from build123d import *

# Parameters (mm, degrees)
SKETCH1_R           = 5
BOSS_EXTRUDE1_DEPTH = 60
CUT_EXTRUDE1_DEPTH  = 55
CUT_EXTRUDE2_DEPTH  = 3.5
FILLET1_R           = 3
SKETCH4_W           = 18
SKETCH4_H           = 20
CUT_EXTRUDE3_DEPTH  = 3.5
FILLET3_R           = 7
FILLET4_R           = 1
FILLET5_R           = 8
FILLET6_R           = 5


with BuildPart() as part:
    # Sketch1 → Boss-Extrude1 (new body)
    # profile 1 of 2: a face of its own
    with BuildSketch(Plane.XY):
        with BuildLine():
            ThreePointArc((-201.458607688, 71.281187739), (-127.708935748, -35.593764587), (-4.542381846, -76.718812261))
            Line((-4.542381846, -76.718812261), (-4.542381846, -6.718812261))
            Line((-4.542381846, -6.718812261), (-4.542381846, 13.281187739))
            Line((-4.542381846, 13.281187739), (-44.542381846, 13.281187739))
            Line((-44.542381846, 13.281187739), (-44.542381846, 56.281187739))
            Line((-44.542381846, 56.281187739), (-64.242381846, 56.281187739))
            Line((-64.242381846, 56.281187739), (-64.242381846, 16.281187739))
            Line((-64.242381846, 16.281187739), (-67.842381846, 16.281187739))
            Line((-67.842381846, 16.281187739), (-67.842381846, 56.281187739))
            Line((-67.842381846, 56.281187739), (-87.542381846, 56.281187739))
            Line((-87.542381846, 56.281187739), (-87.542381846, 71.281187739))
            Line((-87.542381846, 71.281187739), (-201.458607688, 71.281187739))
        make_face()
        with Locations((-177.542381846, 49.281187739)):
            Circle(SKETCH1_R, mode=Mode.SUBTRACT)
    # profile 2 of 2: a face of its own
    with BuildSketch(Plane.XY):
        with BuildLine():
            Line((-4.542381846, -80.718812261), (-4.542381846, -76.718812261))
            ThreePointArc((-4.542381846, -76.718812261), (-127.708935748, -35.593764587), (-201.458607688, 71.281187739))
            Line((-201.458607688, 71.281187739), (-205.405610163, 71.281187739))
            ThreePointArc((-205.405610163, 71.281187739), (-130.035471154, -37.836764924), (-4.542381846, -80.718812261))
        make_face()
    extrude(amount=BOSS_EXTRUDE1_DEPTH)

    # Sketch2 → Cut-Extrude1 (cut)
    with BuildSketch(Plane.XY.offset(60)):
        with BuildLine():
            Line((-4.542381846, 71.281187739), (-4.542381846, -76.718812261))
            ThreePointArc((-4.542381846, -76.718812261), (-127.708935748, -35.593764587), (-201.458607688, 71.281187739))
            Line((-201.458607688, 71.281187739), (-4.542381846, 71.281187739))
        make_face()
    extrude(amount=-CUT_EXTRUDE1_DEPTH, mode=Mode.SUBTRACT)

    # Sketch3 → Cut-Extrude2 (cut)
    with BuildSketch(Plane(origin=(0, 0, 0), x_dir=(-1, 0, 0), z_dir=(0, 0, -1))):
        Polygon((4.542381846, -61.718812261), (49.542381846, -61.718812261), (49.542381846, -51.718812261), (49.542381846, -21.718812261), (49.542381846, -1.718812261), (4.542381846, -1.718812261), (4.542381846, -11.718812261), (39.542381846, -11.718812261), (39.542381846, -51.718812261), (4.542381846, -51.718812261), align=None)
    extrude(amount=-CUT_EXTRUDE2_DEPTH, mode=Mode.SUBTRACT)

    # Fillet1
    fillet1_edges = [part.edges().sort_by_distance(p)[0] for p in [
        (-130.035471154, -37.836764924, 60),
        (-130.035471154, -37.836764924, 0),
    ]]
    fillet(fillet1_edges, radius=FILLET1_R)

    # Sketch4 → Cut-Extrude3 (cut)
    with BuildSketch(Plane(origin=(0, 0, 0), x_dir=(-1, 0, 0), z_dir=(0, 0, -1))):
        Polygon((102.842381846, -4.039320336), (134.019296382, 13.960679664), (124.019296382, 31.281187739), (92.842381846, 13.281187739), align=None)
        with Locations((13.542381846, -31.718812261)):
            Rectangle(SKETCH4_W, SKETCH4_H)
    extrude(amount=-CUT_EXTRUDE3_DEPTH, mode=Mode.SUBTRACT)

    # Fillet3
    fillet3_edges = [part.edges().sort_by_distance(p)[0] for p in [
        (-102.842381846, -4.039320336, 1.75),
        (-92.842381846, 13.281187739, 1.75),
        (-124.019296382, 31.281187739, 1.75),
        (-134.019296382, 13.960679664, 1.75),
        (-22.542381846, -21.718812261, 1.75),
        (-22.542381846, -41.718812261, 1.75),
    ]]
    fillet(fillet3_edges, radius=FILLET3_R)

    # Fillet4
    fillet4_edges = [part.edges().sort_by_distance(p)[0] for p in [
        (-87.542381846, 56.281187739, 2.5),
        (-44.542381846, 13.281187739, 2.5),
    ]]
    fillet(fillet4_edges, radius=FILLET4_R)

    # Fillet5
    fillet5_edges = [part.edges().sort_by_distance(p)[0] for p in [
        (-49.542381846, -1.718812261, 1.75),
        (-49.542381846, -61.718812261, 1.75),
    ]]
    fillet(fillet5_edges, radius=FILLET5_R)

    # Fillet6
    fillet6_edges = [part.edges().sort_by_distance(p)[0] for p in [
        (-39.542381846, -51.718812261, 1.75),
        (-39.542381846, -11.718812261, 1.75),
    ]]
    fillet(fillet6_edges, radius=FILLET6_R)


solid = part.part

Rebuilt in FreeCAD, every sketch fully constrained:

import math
import FreeCAD as App
import Part
import Sketcher
from FreeCAD import Vector
Q = App.Units.Quantity


def edges_at(feature, points):
    """Names of the edges that pass closest to the given points."""
    edges = feature.Shape.Edges
    near = lambda p: min(range(len(edges)), key=lambda i: edges[i].distToShape(Part.Vertex(*p))[0])
    return sorted({f"Edge{near(p) + 1}" for p in points})


def add_polygon(sketch, points):
    """Adds a closed chain of lines whose ends are joined by coincident constraints."""
    first, n = sketch.GeometryCount, len(points)
    for a, b in zip(points, points[1:] + points[:1]):
        sketch.addGeometry(Part.LineSegment(App.Vector(*a, 0), App.Vector(*b, 0)), False)
    for i in range(n):
        sketch.addConstraint(Sketcher.Constraint("Coincident", first + i, 2, first + (i + 1) % n, 1))

doc = App.newDocument("Part")
params = doc.addObject("Spreadsheet::Sheet", "Params")
for row, (alias, value) in enumerate([
    ("sketch1_diameter", "10 mm"),
    ("sketch1_width", "40 mm"),
    ("sketch1_height", "94 mm"),
    ("sketch1_height2", "43 mm"),
    ("sketch1_height3", "15 mm"),
    ("pad1_length", "60 mm"),
    ("sketch2_radius", "205 mm"),
    ("sketch2_height", "148 mm"),
    ("pocket1_length", "55 mm"),
    ("sketch3_width", "45 mm"),
    ("sketch3_width2", "35 mm"),
    ("sketch3_height", "60 mm"),
    ("sketch3_height2", "10 mm"),
    ("pocket2_length", "3.5 mm"),
    ("fillet_radius", "3 mm"),
    ("sketch4_width", "18 mm"),
    ("sketch4_height", "20 mm"),
    ("sketch4_length", "36 mm"),
    ("sketch4_length2", "20 mm"),
    ("pocket3_length", "3.5 mm"),
    ("fillet2_radius", "7 mm"),
    ("fillet3_radius", "1 mm"),
    ("fillet4_radius", "8 mm"),
    ("fillet5_radius", "5 mm"),
], start=1):
    params.set(f"A{row}", alias)
    params.set(f"B{row}", "=" + value)
    params.setAlias(f"B{row}", alias)

body = doc.addObject("PartDesign::Body", "Body")

# Sketch on XY plane
sketch1 = body.newObject("Sketcher::SketchObject", "Sketch")
sketch1.AttachmentSupport = (doc.getObject("XY_Plane"), [""])
sketch1.MapMode = "FlatFace"
sketch1.addGeometry([
    Part.LineSegment(Vector(-87.5, 71.3, 0), Vector(-205.4, 71.3, 0)),  # 0
    Part.ArcOfCircle(Part.Circle(Vector(-2.3, 131, 0), Vector(0, 0, 1), 211.7), math.radians(-164), math.radians(-91)),  # 1
    Part.LineSegment(Vector(-4.5, -80.7, 0), Vector(-4.5, 13.3, 0)),  # 2
    Part.LineSegment(Vector(-4.5, 13.3, 0), Vector(-44.5, 13.3, 0)),  # 3
    Part.LineSegment(Vector(-44.5, 13.3, 0), Vector(-44.5, 56.3, 0)),  # 4
    Part.LineSegment(Vector(-44.5, 56.3, 0), Vector(-64.2, 56.3, 0)),  # 5
    Part.LineSegment(Vector(-64.2, 56.3, 0), Vector(-64.2, 16.3, 0)),  # 6
    Part.LineSegment(Vector(-64.2, 16.3, 0), Vector(-67.8, 16.3, 0)),  # 7
    Part.LineSegment(Vector(-67.8, 16.3, 0), Vector(-67.8, 56.3, 0)),  # 8
    Part.LineSegment(Vector(-67.8, 56.3, 0), Vector(-87.5, 56.3, 0)),  # 9
    Part.LineSegment(Vector(-87.5, 56.3, 0), Vector(-87.5, 71.3, 0)),  # 10
    Part.Circle(Vector(-177.5, 49.3, 0), Vector(0, 0, 1), 5),  # 11
], False)
sketch1.addConstraint([
    Sketcher.Constraint("Coincident", 0, 2, 1, 1),
    Sketcher.Constraint("Coincident", 1, 2, 2, 1),
    Sketcher.Constraint("Coincident", 2, 2, 3, 1),
    Sketcher.Constraint("Coincident", 3, 2, 4, 1),
    Sketcher.Constraint("Coincident", 4, 2, 5, 1),
    Sketcher.Constraint("Coincident", 5, 2, 6, 1),
    Sketcher.Constraint("Coincident", 6, 2, 7, 1),
    Sketcher.Constraint("Coincident", 7, 2, 8, 1),
    Sketcher.Constraint("Coincident", 8, 2, 9, 1),
    Sketcher.Constraint("Coincident", 9, 2, 10, 1),
    Sketcher.Constraint("Coincident", 10, 2, 0, 1),
    Sketcher.Constraint("Horizontal", 0),
    Sketcher.Constraint("Vertical", 2),
    Sketcher.Constraint("Horizontal", 3),
    Sketcher.Constraint("Vertical", 4),
    Sketcher.Constraint("Horizontal", 5),
    Sketcher.Constraint("Vertical", 6),
    Sketcher.Constraint("Horizontal", 7),
    Sketcher.Constraint("Vertical", 8),
    Sketcher.Constraint("Horizontal", 9),
    Sketcher.Constraint("Vertical", 10),
    Sketcher.Constraint("Horizontal", 5, 2, 8, 2),
    Sketcher.Constraint("Equal", 5, 9),
    Sketcher.Constraint("Equal", 3, 6),
    Sketcher.Constraint("Diameter", 11, 10.0),
    Sketcher.Constraint("DistanceX", 3, 2, 3, 1, 40.0),
    Sketcher.Constraint("DistanceY", 2, 1, 2, 2, 94.0),
    Sketcher.Constraint("DistanceY", 4, 1, 4, 2, 43.0),
    Sketcher.Constraint("DistanceY", 10, 1, 10, 2, 15.0),
    Sketcher.Constraint("DistanceX", 5, 2, 5, 1, 19.7),
    Sketcher.Constraint("DistanceX", 7, 2, 7, 1, 3.6),
    Sketcher.Constraint("DistanceY", 11, 3, 0, 2, 22.0),
    Sketcher.Constraint("DistanceX", 11, 3, 1, 2, 173.0),
    Sketcher.Constraint("Radius", 1, 211.73483),
    Sketcher.Constraint("DistanceX", 0, 2, 0, 1, 117.863228),
    Sketcher.Constraint("DistanceX", 1, 3, -1, 1, 2.268101),
    Sketcher.Constraint("DistanceY", -1, 1, 1, 3, 131.003804),
])
sketch1.setExpression("Constraints[24]", "Params.sketch1_diameter")
sketch1.setExpression("Constraints[25]", "Params.sketch1_width")
sketch1.setExpression("Constraints[26]", "Params.sketch1_height")
sketch1.setExpression("Constraints[27]", "Params.sketch1_height2")
sketch1.setExpression("Constraints[28]", "Params.sketch1_height3")
pad1 = body.newObject("PartDesign::Pad", "Pad")
pad1.Profile = sketch1
pad1.setExpression("Length", "Params.pad1_length")

# Sketch on XY plane
sketch2 = body.newObject("Sketcher::SketchObject", "Sketch001")
sketch2.AttachmentSupport = (doc.getObject("XY_Plane"), [""])
sketch2.MapMode = "FlatFace"
sketch2.AttachmentOffset = App.Placement(Vector(0, 0, 60), App.Rotation())
sketch2.addGeometry([
    Part.LineSegment(Vector(-5, -77, 0), Vector(-5, 71, 0)),
    Part.LineSegment(Vector(-5, 71, 0), Vector(-201, 71, 0)),
    Part.ArcOfCircle(Part.Circle(Vector(-5, 128, 0), Vector(0, 0, 1), 205), math.radians(-164), math.radians(-90)),
], False)
sketch2.addConstraint([
    Sketcher.Constraint("Coincident", 0, 2, 1, 1),
    Sketcher.Constraint("Coincident", 1, 2, 2, 1),
    Sketcher.Constraint("Coincident", 2, 2, 0, 1),
    Sketcher.Constraint("Vertical", 0),
    Sketcher.Constraint("Horizontal", 1),
    Sketcher.Constraint("Vertical", 2, 3, 0, 2),
    Sketcher.Constraint("Radius", 2, 205.0),
    Sketcher.Constraint("DistanceY", 0, 1, 0, 2, 148.0),
    Sketcher.Constraint("DistanceX", 2, 3, -1, 1, 4.542382),
    Sketcher.Constraint("DistanceY", -1, 1, 2, 3, 128.281188),
])
sketch2.setExpression("Constraints[6]", "Params.sketch2_radius")
sketch2.setExpression("Constraints[7]", "Params.sketch2_height")
pocket1 = body.newObject("PartDesign::Pocket", "Pocket")
pocket1.Profile = sketch2
pocket1.setExpression("Length", "Params.pocket1_length")

# Sketch on XY plane
sketch3 = body.newObject("Sketcher::SketchObject", "Sketch002")
sketch3.AttachmentSupport = (doc.getObject("XY_Plane"), [""])
sketch3.MapMode = "FlatFace"
add_polygon(sketch3, [(-5, -62), (-50, -62), (-50, -2), (-5, -2), (-5, -12), (-40, -12), (-40, -52), (-5, -52)])  # lines 0-7
sketch3.addConstraint([
    Sketcher.Constraint("Horizontal", 0),
    Sketcher.Constraint("Vertical", 1),
    Sketcher.Constraint("Horizontal", 2),
    Sketcher.Constraint("Vertical", 3),
    Sketcher.Constraint("Horizontal", 4),
    Sketcher.Constraint("Vertical", 5),
    Sketcher.Constraint("Horizontal", 6),
    Sketcher.Constraint("Vertical", 7),
    Sketcher.Constraint("Vertical", 3, 2, 6, 2),
    Sketcher.Constraint("Equal", 3, 7),
    Sketcher.Constraint("DistanceX", 0, 2, 0, 1, 45.0),
    Sketcher.Constraint("DistanceX", 4, 2, 4, 1, 35.0),
    Sketcher.Constraint("DistanceY", 1, 1, 1, 2, 60.0),
    Sketcher.Constraint("DistanceY", 3, 2, 3, 1, 10.0),
    Sketcher.Constraint("DistanceX", 0, 2, -1, 1, 49.542382),
    Sketcher.Constraint("DistanceY", 0, 2, -1, 1, 61.718812),
])
sketch3.setExpression("Constraints[18]", "Params.sketch3_width")
sketch3.setExpression("Constraints[19]", "Params.sketch3_width2")
sketch3.setExpression("Constraints[20]", "Params.sketch3_height")
sketch3.setExpression("Constraints[21]", "Params.sketch3_height2")
pocket2 = body.newObject("PartDesign::Pocket", "Pocket001")
pocket2.Profile = sketch3
pocket2.setExpression("Length", "Params.pocket2_length")
pocket2.Reversed = True
doc.recompute()

fillet = body.newObject("PartDesign::Fillet", "Fillet")
fillet.Base = (pocket2, edges_at(pocket2, [(-130.035, -37.837, 60), (-130.035, -37.837, 0)]))
fillet.setExpression("Radius", "Params.fillet_radius")

# Sketch on XY plane
sketch4 = body.newObject("Sketcher::SketchObject", "Sketch003")
sketch4.AttachmentSupport = (doc.getObject("XY_Plane"), [""])
sketch4.MapMode = "FlatFace"
add_polygon(sketch4, [(-103, -4), (-134, 14), (-124, 31), (-93, 13)])  # lines 0-3
add_polygon(sketch4, [(-5, -22), (-5, -42), (-23, -42), (-23, -22)])  # lines 4-7
sketch4.addConstraint([
    Sketcher.Constraint("Vertical", 4),
    Sketcher.Constraint("Horizontal", 5),
    Sketcher.Constraint("Vertical", 6),
    Sketcher.Constraint("Horizontal", 7),
    Sketcher.Constraint("Perpendicular", 0, 1),
    Sketcher.Constraint("Perpendicular", 1, 2),
    Sketcher.Constraint("Perpendicular", 2, 3),
    Sketcher.Constraint("DistanceX", 5, 2, 5, 1, 18.0),
    Sketcher.Constraint("DistanceY", 4, 2, 4, 1, 20.0),
    Sketcher.Constraint("Angle", 0, Q("150 deg")),
    Sketcher.Constraint("Distance", 0, 36.0),
    Sketcher.Constraint("Distance", 1, 20.0),
    Sketcher.Constraint("DistanceY", 4, 2, 2, 2, 55.0),
    Sketcher.Constraint("DistanceX", 2, 2, 4, 2, 88.3),
    Sketcher.Constraint("DistanceY", -1, 1, 0, 2, 13.96068),
    Sketcher.Constraint("DistanceX", 2, 2, -1, 1, 92.842382),
])
sketch4.setExpression("Constraints[15]", "Params.sketch4_width")
sketch4.setExpression("Constraints[16]", "Params.sketch4_height")
sketch4.setExpression("Constraints[18]", "Params.sketch4_length")
sketch4.setExpression("Constraints[19]", "Params.sketch4_length2")
pocket3 = body.newObject("PartDesign::Pocket", "Pocket002")
pocket3.Profile = sketch4
pocket3.setExpression("Length", "Params.pocket3_length")
pocket3.Reversed = True
doc.recompute()

fillet2 = body.newObject("PartDesign::Fillet", "Fillet001")
fillet2.Base = (pocket3, edges_at(pocket3, [
    (-102.842, -4.039, 1.75),
    (-92.842, 13.281, 1.75),
    (-124.019, 31.281, 1.75),
    (-134.019, 13.961, 1.75),
    (-22.542, -21.719, 1.75),
    (-22.542, -41.719, 1.75),
]))
fillet2.setExpression("Radius", "Params.fillet2_radius")
doc.recompute()

fillet3 = body.newObject("PartDesign::Fillet", "Fillet002")
fillet3.Base = (fillet2, edges_at(fillet2, [(-87.542, 56.281, 2.5), (-44.542, 13.281, 2.5)]))
fillet3.setExpression("Radius", "Params.fillet3_radius")
doc.recompute()

fillet4 = body.newObject("PartDesign::Fillet", "Fillet003")
fillet4.Base = (fillet3, edges_at(fillet3, [(-49.542, -1.719, 1.75), (-49.542, -61.719, 1.75)]))
fillet4.setExpression("Radius", "Params.fillet4_radius")
doc.recompute()

fillet5 = body.newObject("PartDesign::Fillet", "Fillet004")
fillet5.Base = (fillet4, edges_at(fillet4, [(-39.542, -51.719, 1.75), (-39.542, -11.719, 1.75)]))
fillet5.setExpression("Radius", "Params.fillet5_radius")

doc.recompute()
